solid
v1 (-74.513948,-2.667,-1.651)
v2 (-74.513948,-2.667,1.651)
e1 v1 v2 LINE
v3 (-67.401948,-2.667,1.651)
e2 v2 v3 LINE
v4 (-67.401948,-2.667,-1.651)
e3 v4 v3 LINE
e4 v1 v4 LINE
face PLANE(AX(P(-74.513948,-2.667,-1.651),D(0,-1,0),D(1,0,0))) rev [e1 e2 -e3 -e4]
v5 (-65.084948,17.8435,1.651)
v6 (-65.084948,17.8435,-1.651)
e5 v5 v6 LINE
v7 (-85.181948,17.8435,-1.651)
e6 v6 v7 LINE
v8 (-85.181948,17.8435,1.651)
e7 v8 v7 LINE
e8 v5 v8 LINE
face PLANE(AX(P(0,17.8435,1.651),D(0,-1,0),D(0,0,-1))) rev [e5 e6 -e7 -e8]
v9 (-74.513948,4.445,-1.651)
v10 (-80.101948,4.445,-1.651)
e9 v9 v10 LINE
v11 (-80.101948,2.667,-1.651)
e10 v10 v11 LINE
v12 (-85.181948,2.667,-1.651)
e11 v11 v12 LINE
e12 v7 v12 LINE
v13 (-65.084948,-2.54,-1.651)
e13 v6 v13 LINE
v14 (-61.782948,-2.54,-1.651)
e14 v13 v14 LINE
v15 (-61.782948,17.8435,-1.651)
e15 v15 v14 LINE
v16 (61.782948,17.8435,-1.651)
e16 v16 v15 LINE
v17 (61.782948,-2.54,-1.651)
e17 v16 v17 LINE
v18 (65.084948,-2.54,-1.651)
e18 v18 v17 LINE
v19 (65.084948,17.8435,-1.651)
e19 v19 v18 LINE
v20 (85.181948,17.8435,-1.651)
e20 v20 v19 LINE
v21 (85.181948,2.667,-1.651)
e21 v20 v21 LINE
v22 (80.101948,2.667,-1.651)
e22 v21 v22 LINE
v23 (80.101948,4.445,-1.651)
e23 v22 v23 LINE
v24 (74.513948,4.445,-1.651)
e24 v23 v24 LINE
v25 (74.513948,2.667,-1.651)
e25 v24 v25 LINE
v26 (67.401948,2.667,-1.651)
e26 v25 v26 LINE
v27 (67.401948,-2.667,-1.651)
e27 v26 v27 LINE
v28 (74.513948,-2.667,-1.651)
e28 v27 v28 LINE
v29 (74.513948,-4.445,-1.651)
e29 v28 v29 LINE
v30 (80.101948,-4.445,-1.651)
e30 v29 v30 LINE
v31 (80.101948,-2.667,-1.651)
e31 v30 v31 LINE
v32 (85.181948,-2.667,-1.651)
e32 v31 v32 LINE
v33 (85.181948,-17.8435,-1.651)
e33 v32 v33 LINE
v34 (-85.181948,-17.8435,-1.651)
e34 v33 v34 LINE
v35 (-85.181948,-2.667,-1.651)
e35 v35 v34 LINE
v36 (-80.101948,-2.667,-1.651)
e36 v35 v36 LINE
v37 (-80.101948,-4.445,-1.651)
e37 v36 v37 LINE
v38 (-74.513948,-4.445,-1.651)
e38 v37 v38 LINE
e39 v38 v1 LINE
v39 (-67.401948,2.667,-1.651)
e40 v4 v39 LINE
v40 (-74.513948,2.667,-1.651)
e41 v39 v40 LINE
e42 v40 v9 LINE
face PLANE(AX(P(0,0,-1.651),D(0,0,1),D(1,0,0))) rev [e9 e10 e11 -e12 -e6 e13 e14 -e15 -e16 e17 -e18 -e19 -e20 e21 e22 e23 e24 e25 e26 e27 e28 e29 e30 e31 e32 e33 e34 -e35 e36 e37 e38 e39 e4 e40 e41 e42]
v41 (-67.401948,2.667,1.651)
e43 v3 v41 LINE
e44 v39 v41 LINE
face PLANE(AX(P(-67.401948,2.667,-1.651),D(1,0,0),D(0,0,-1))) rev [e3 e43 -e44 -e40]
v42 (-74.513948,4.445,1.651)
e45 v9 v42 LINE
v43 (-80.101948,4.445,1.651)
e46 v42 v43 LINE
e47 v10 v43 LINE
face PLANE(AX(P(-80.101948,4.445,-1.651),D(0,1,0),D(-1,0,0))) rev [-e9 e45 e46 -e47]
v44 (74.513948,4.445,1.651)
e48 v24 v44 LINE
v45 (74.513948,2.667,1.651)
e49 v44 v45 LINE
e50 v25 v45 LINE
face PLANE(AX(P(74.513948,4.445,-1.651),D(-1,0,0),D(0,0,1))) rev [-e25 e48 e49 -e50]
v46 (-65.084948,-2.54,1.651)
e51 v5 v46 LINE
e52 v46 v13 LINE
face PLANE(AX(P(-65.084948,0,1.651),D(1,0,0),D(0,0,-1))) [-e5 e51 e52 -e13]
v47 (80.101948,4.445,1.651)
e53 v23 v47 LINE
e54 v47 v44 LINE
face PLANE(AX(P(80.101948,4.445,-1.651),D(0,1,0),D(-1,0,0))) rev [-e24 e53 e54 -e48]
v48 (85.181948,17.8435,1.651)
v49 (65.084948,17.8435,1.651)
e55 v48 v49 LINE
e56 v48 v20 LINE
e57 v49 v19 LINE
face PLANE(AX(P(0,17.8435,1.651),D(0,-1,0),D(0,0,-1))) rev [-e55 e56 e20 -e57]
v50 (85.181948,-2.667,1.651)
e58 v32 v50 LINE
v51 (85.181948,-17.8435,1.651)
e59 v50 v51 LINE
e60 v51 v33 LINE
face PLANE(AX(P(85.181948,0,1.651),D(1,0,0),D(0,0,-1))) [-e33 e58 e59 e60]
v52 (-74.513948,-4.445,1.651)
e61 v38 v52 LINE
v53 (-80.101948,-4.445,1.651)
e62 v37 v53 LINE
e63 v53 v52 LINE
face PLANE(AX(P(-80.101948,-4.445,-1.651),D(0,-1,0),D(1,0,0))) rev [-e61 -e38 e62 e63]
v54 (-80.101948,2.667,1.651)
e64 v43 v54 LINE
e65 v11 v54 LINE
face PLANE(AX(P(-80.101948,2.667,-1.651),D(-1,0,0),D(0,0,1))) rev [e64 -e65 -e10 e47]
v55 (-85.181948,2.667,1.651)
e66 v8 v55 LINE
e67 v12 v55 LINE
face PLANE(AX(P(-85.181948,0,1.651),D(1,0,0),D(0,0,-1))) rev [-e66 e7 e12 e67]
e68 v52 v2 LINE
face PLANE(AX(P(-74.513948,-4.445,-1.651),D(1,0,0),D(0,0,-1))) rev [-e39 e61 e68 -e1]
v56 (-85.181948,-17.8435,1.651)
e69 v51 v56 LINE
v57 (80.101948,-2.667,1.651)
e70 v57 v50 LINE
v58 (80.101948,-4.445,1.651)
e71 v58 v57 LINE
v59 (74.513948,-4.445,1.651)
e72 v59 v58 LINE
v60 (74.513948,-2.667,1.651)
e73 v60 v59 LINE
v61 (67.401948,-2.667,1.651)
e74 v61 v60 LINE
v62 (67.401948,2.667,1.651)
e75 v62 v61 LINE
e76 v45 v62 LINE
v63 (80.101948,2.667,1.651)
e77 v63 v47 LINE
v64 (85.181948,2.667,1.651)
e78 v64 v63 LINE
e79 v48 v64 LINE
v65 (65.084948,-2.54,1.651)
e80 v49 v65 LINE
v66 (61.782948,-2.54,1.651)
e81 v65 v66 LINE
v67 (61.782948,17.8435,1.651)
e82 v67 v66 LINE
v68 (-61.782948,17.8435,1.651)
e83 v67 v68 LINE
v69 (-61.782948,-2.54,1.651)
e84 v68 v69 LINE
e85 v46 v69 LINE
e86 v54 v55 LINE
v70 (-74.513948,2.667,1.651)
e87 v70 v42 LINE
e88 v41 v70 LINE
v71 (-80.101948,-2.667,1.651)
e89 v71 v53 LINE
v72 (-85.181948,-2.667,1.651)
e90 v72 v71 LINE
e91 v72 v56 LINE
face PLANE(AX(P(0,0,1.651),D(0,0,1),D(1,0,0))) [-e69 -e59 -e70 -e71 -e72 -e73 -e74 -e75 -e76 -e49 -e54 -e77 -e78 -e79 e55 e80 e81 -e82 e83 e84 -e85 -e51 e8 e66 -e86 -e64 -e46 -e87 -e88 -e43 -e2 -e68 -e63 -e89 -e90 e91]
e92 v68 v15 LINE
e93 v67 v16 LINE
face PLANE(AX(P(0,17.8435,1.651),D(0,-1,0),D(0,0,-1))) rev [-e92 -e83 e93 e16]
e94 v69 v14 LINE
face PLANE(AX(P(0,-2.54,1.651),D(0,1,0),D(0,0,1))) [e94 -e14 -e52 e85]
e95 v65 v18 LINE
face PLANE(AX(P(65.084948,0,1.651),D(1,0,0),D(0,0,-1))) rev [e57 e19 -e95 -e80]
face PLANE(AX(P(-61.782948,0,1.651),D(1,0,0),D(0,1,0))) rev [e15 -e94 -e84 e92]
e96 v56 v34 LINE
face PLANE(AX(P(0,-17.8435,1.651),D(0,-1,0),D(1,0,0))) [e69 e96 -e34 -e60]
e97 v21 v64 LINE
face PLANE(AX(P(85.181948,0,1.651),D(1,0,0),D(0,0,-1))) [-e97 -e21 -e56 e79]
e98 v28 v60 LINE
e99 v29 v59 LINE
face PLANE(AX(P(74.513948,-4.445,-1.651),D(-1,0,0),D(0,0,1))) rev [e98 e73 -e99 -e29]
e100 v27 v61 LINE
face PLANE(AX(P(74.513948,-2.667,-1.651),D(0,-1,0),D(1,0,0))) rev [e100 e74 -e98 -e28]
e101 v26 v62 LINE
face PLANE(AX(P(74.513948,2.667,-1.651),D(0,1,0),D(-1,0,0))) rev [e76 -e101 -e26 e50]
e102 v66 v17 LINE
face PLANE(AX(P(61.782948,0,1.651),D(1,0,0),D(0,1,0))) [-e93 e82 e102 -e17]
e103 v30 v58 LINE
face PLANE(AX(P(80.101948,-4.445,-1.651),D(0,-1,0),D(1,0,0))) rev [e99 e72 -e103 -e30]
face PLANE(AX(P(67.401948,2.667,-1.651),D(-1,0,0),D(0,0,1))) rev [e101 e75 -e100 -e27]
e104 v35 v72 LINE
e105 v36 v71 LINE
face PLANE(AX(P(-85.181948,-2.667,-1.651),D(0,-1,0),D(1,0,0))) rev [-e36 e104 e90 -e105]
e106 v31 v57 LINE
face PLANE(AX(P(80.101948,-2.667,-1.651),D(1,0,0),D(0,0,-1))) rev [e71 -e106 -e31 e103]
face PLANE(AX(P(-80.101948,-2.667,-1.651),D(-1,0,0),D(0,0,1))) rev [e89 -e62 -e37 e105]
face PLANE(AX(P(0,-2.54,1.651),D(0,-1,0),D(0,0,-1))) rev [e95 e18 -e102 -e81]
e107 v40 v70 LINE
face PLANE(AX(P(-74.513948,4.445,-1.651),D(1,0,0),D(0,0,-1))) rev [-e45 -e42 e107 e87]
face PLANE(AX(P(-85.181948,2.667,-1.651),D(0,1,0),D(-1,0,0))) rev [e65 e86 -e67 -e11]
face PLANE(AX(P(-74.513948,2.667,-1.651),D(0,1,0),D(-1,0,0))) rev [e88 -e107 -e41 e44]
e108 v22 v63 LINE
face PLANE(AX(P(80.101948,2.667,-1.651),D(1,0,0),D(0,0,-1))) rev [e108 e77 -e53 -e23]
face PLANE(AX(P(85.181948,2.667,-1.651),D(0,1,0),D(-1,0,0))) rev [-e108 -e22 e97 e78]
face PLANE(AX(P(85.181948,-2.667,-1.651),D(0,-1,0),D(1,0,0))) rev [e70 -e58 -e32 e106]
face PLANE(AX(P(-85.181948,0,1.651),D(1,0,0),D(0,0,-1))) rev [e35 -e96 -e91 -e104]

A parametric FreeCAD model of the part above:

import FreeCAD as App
import Part
import Sketcher
from FreeCAD import Vector
Q = App.Units.Quantity

doc = App.newDocument("Part")
params = doc.addObject("Spreadsheet::Sheet", "Params")
for row, (alias, value) in enumerate([
    ("sketch1_width", "0.13 in"),
    ("sketch1_height", "1.405 in"),
    ("pad1_length", "0.13 in"),
    ("sketch2_width", "0.2 in"),
    ("sketch2_width2", "0.22 in"),
    ("sketch2_width3", "0.28 in"),
    ("sketch2_height", "0.07 in"),
    ("sketch2_height2", "0.21 in"),
], start=1):
    params.set(f"A{row}", alias)
    params.set(f"B{row}", "=" + value)
    params.setAlias(f"B{row}", alias)

body = doc.addObject("PartDesign::Body", "Body")

# Sketch on XY plane
sketch1 = body.newObject("Sketcher::SketchObject", "Sketch")
sketch1.AttachmentSupport = (doc.getObject("XY_Plane"), [""])
sketch1.MapMode = "FlatFace"
sketch1.addGeometry([
    Part.LineSegment(Vector(85.2, -17.8, 0), Vector(85.2, 17.8, 0)),  # 0
    Part.LineSegment(Vector(85.2, 17.8, 0), Vector(65.1, 17.8, 0)),  # 1
    Part.LineSegment(Vector(65.1, 17.8, 0), Vector(65.1, -2.5, 0)),  # 2
    Part.LineSegment(Vector(65.1, -2.5, 0), Vector(61.8, -2.5, 0)),  # 3
    Part.LineSegment(Vector(61.8, -2.5, 0), Vector(61.8, 17.8, 0)),  # 4
    Part.LineSegment(Vector(61.8, 17.8, 0), Vector(-61.8, 17.8, 0)),  # 5
    Part.LineSegment(Vector(-61.8, 17.8, 0), Vector(-61.8, -2.5, 0)),  # 6
    Part.LineSegment(Vector(-61.8, -2.5, 0), Vector(-65.1, -2.5, 0)),  # 7
    Part.LineSegment(Vector(-65.1, -2.5, 0), Vector(-65.1, 17.8, 0)),  # 8
    Part.LineSegment(Vector(-65.1, 17.8, 0), Vector(-85.2, 17.8, 0)),  # 9
    Part.LineSegment(Vector(-85.2, 17.8, 0), Vector(-85.2, -17.8, 0)),  # 10
    Part.LineSegment(Vector(-85.2, -17.8, 0), Vector(85.2, -17.8, 0)),  # 11
], False)
sketch1.addConstraint([
    Sketcher.Constraint("Coincident", 0, 2, 1, 1),
    Sketcher.Constraint("Coincident", 1, 2, 2, 1),
    Sketcher.Constraint("Coincident", 2, 2, 3, 1),
    Sketcher.Constraint("Coincident", 3, 2, 4, 1),
    Sketcher.Constraint("Coincident", 4, 2, 5, 1),
    Sketcher.Constraint("Coincident", 5, 2, 6, 1),
    Sketcher.Constraint("Coincident", 6, 2, 7, 1),
    Sketcher.Constraint("Coincident", 7, 2, 8, 1),
    Sketcher.Constraint("Coincident", 8, 2, 9, 1),
    Sketcher.Constraint("Coincident", 9, 2, 10, 1),
    Sketcher.Constraint("Coincident", 10, 2, 11, 1),
    Sketcher.Constraint("Coincident", 11, 2, 0, 1),
    Sketcher.Constraint("Vertical", 0),
    Sketcher.Constraint("Horizontal", 1),
    Sketcher.Constraint("Vertical", 2),
    Sketcher.Constraint("Horizontal", 3),
    Sketcher.Constraint("Vertical", 4),
    Sketcher.Constraint("Horizontal", 5),
    Sketcher.Constraint("Vertical", 6),
    Sketcher.Constraint("Horizontal", 7),
    Sketcher.Constraint("Vertical", 8),
    Sketcher.Constraint("Horizontal", 9),
    Sketcher.Constraint("Vertical", 10),
    Sketcher.Constraint("Horizontal", 11),
    Sketcher.Constraint("Symmetric", 0, 2, 10, 2, -1, 1),
    Sketcher.Constraint("Symmetric", 3, 2, 6, 2, -2),
    Sketcher.Constraint("Symmetric", 1, 2, 8, 2, -2),
    Sketcher.Constraint("Horizontal", 1, 2, 4, 2),
    Sketcher.Constraint("DistanceX", 3, 2, 3, 1, Q("0.13 in")),
    Sketcher.Constraint("DistanceY", 2, 2, -1, 1, Q("0.1 in")),
    Sketcher.Constraint("DistanceY", 0, 1, 0, 2, Q("1.405 in")),
    Sketcher.Constraint("DistanceX", 1, 2, 1, 1, Q("20.097 mm")),
    Sketcher.Constraint("DistanceX", 5, 2, 5, 1, Q("123.565896 mm")),
])
sketch1.setExpression("Constraints[28]", "Params.sketch1_width")
sketch1.setExpression("Constraints[30]", "Params.sketch1_height")
pad1 = body.newObject("PartDesign::Pad", "Pad")
pad1.Profile = sketch1
pad1.setExpression("Length", "Params.pad1_length")
pad1.Midplane = True

# Sketch on XY plane
sketch2 = body.newObject("Sketcher::SketchObject", "Sketch001")
sketch2.AttachmentSupport = (doc.getObject("XY_Plane"), [""])
sketch2.MapMode = "FlatFace"
sketch2.AttachmentOffset = App.Placement(Vector(0, 0, 0.065 * 25.4), App.Rotation())
sketch2.addGeometry([
    Part.LineSegment(Vector(85.2, 2.7, 0), Vector(80.1, 2.7, 0)),  # 0
    Part.LineSegment(Vector(80.1, 2.7, 0), Vector(80.1, 4.4, 0)),  # 1
    Part.LineSegment(Vector(80.1, 4.4, 0), Vector(74.5, 4.4, 0)),  # 2
    Part.LineSegment(Vector(74.5, 4.4, 0), Vector(74.5, 2.7, 0)),  # 3
    Part.LineSegment(Vector(74.5, 2.7, 0), Vector(67.4, 2.7, 0)),  # 4
    Part.LineSegment(Vector(67.4, 2.7, 0), Vector(67.4, -2.7, 0)),  # 5
    Part.LineSegment(Vector(67.4, -2.7, 0), Vector(74.5, -2.7, 0)),  # 6
    Part.LineSegment(Vector(74.5, -2.7, 0), Vector(74.5, -4.4, 0)),  # 7
    Part.LineSegment(Vector(74.5, -4.4, 0), Vector(80.1, -4.4, 0)),  # 8
    Part.LineSegment(Vector(80.1, -4.4, 0), Vector(80.1, -2.7, 0)),  # 9
    Part.LineSegment(Vector(80.1, -2.7, 0), Vector(85.2, -2.7, 0)),  # 10
    Part.LineSegment(Vector(85.2, -2.7, 0), Vector(85.2, 2.7, 0)),  # 11
    Part.LineSegment(Vector(-85.2, -2.7, 0), Vector(-80.1, -2.7, 0)),  # 12
    Part.LineSegment(Vector(-80.1, -2.7, 0), Vector(-80.1, -4.4, 0)),  # 13
    Part.LineSegment(Vector(-80.1, -4.4, 0), Vector(-74.5, -4.4, 0)),  # 14
    Part.LineSegment(Vector(-74.5, -4.4, 0), Vector(-74.5, -2.7, 0)),  # 15
    Part.LineSegment(Vector(-74.5, -2.7, 0), Vector(-67.4, -2.7, 0)),  # 16
    Part.LineSegment(Vector(-67.4, -2.7, 0), Vector(-67.4, 2.7, 0)),  # 17
    Part.LineSegment(Vector(-67.4, 2.7, 0), Vector(-74.5, 2.7, 0)),  # 18
    Part.LineSegment(Vector(-74.5, 2.7, 0), Vector(-74.5, 4.4, 0)),  # 19
    Part.LineSegment(Vector(-74.5, 4.4, 0), Vector(-80.1, 4.4, 0)),  # 20
    Part.LineSegment(Vector(-80.1, 4.4, 0), Vector(-80.1, 2.7, 0)),  # 21
    Part.LineSegment(Vector(-80.1, 2.7, 0), Vector(-85.2, 2.7, 0)),  # 22
    Part.LineSegment(Vector(-85.2, 2.7, 0), Vector(-85.2, -2.7, 0)),  # 23
], False)
sketch2.addConstraint([
    Sketcher.Constraint("Coincident", 0, 2, 1, 1),
    Sketcher.Constraint("Coincident", 1, 2, 2, 1),
    Sketcher.Constraint("Coincident", 2, 2, 3, 1),
    Sketcher.Constraint("Coincident", 3, 2, 4, 1),
    Sketcher.Constraint("Coincident", 4, 2, 5, 1),
    Sketcher.Constraint("Coincident", 5, 2, 6, 1),
    Sketcher.Constraint("Coincident", 6, 2, 7, 1),
    Sketcher.Constraint("Coincident", 7, 2, 8, 1),
    Sketcher.Constraint("Coincident", 8, 2, 9, 1),
    Sketcher.Constraint("Coincident", 9, 2, 10, 1),
    Sketcher.Constraint("Coincident", 10, 2, 11, 1),
    Sketcher.Constraint("Coincident", 11, 2, 0, 1),
    Sketcher.Constraint("Coincident", 12, 2, 13, 1),
    Sketcher.Constraint("Coincident", 13, 2, 14, 1),
    Sketcher.Constraint("Coincident", 14, 2, 15, 1),
    Sketcher.Constraint("Coincident", 15, 2, 16, 1),
    Sketcher.Constraint("Coincident", 16, 2, 17, 1),
    Sketcher.Constraint("Coincident", 17, 2, 18, 1),
    Sketcher.Constraint("Coincident", 18, 2, 19, 1),
    Sketcher.Constraint("Coincident", 19, 2, 20, 1),
    Sketcher.Constraint("Coincident", 20, 2, 21, 1),
    Sketcher.Constraint("Coincident", 21, 2, 22, 1),
    Sketcher.Constraint("Coincident", 22, 2, 23, 1),
    Sketcher.Constraint("Coincident", 23, 2, 12, 1),
    Sketcher.Constraint("Horizontal", 0),
    Sketcher.Constraint("Vertical", 1),
    Sketcher.Constraint("Horizontal", 2),
    Sketcher.Constraint("Vertical", 3),
    Sketcher.Constraint("Horizontal", 4),
    Sketcher.Constraint("Vertical", 5),
    Sketcher.Constraint("Horizontal", 6),
    Sketcher.Constraint("Vertical", 7),
    Sketcher.Constraint("Horizontal", 8),
    Sketcher.Constraint("Vertical", 9),
    Sketcher.Constraint("Horizontal", 10),
    Sketcher.Constraint("Vertical", 11),
    Sketcher.Constraint("Horizontal", 12),
    Sketcher.Constraint("Vertical", 13),
    Sketcher.Constraint("Horizontal", 14),
    Sketcher.Constraint("Vertical", 15),
    Sketcher.Constraint("Horizontal", 16),
    Sketcher.Constraint("Vertical", 17),
    Sketcher.Constraint("Horizontal", 18),
    Sketcher.Constraint("Vertical", 19),
    Sketcher.Constraint("Horizontal", 20),
    Sketcher.Constraint("Vertical", 21),
    Sketcher.Constraint("Horizontal", 22),
    Sketcher.Constraint("Vertical", 23),
    Sketcher.Constraint("Symmetric", 0, 2, 12, 2, -1, 1),
    Sketcher.Constraint("Symmetric", 2, 2, 14, 2, -1, 1),
    Sketcher.Constraint("Symmetric", 4, 2, 16, 2, -1, 1),
    Sketcher.Constraint("Symmetric", 6, 2, 18, 2, -1, 1),
    Sketcher.Constraint("Symmetric", 8, 2, 20, 2, -1, 1),
    Sketcher.Constraint("Symmetric", 10, 2, 22, 2, -1, 1),
    Sketcher.Constraint("Symmetric", 9, 2, 12, 2, -2),
    Sketcher.Constraint("Symmetric", 7, 2, 14, 2, -2),
    Sketcher.Constraint("Horizontal", 0, 2, 3, 2),
    Sketcher.Constraint("Horizontal", 6, 2, 9, 2),
    Sketcher.Constraint("DistanceX", 0, 2, 0, 1, Q("0.2 in")),
    Sketcher.Constraint("DistanceX", 2, 2, 2, 1, Q("0.22 in")),
    Sketcher.Constraint("DistanceX", 4, 2, 4, 1, Q("0.28 in")),
    Sketcher.Constraint("DistanceY", 1, 1, 1, 2, Q("0.07 in")),
    Sketcher.Constraint("DistanceY", 5, 2, 5, 1, Q("0.21 in")),
    Sketcher.Constraint("DistanceX", -1, 1, 2, 2, Q("74.513948 mm")),
])
sketch2.setExpression("Constraints[58]", "Params.sketch2_width")
sketch2.setExpression("Constraints[59]", "Params.sketch2_width2")
sketch2.setExpression("Constraints[60]", "Params.sketch2_width3")
sketch2.setExpression("Constraints[61]", "Params.sketch2_height")
sketch2.setExpression("Constraints[62]", "Params.sketch2_height2")
pocket1 = body.newObject("PartDesign::Pocket", "Pocket")
pocket1.Profile = sketch2
pocket1.Type = "ThroughAll"

doc.recompute()
